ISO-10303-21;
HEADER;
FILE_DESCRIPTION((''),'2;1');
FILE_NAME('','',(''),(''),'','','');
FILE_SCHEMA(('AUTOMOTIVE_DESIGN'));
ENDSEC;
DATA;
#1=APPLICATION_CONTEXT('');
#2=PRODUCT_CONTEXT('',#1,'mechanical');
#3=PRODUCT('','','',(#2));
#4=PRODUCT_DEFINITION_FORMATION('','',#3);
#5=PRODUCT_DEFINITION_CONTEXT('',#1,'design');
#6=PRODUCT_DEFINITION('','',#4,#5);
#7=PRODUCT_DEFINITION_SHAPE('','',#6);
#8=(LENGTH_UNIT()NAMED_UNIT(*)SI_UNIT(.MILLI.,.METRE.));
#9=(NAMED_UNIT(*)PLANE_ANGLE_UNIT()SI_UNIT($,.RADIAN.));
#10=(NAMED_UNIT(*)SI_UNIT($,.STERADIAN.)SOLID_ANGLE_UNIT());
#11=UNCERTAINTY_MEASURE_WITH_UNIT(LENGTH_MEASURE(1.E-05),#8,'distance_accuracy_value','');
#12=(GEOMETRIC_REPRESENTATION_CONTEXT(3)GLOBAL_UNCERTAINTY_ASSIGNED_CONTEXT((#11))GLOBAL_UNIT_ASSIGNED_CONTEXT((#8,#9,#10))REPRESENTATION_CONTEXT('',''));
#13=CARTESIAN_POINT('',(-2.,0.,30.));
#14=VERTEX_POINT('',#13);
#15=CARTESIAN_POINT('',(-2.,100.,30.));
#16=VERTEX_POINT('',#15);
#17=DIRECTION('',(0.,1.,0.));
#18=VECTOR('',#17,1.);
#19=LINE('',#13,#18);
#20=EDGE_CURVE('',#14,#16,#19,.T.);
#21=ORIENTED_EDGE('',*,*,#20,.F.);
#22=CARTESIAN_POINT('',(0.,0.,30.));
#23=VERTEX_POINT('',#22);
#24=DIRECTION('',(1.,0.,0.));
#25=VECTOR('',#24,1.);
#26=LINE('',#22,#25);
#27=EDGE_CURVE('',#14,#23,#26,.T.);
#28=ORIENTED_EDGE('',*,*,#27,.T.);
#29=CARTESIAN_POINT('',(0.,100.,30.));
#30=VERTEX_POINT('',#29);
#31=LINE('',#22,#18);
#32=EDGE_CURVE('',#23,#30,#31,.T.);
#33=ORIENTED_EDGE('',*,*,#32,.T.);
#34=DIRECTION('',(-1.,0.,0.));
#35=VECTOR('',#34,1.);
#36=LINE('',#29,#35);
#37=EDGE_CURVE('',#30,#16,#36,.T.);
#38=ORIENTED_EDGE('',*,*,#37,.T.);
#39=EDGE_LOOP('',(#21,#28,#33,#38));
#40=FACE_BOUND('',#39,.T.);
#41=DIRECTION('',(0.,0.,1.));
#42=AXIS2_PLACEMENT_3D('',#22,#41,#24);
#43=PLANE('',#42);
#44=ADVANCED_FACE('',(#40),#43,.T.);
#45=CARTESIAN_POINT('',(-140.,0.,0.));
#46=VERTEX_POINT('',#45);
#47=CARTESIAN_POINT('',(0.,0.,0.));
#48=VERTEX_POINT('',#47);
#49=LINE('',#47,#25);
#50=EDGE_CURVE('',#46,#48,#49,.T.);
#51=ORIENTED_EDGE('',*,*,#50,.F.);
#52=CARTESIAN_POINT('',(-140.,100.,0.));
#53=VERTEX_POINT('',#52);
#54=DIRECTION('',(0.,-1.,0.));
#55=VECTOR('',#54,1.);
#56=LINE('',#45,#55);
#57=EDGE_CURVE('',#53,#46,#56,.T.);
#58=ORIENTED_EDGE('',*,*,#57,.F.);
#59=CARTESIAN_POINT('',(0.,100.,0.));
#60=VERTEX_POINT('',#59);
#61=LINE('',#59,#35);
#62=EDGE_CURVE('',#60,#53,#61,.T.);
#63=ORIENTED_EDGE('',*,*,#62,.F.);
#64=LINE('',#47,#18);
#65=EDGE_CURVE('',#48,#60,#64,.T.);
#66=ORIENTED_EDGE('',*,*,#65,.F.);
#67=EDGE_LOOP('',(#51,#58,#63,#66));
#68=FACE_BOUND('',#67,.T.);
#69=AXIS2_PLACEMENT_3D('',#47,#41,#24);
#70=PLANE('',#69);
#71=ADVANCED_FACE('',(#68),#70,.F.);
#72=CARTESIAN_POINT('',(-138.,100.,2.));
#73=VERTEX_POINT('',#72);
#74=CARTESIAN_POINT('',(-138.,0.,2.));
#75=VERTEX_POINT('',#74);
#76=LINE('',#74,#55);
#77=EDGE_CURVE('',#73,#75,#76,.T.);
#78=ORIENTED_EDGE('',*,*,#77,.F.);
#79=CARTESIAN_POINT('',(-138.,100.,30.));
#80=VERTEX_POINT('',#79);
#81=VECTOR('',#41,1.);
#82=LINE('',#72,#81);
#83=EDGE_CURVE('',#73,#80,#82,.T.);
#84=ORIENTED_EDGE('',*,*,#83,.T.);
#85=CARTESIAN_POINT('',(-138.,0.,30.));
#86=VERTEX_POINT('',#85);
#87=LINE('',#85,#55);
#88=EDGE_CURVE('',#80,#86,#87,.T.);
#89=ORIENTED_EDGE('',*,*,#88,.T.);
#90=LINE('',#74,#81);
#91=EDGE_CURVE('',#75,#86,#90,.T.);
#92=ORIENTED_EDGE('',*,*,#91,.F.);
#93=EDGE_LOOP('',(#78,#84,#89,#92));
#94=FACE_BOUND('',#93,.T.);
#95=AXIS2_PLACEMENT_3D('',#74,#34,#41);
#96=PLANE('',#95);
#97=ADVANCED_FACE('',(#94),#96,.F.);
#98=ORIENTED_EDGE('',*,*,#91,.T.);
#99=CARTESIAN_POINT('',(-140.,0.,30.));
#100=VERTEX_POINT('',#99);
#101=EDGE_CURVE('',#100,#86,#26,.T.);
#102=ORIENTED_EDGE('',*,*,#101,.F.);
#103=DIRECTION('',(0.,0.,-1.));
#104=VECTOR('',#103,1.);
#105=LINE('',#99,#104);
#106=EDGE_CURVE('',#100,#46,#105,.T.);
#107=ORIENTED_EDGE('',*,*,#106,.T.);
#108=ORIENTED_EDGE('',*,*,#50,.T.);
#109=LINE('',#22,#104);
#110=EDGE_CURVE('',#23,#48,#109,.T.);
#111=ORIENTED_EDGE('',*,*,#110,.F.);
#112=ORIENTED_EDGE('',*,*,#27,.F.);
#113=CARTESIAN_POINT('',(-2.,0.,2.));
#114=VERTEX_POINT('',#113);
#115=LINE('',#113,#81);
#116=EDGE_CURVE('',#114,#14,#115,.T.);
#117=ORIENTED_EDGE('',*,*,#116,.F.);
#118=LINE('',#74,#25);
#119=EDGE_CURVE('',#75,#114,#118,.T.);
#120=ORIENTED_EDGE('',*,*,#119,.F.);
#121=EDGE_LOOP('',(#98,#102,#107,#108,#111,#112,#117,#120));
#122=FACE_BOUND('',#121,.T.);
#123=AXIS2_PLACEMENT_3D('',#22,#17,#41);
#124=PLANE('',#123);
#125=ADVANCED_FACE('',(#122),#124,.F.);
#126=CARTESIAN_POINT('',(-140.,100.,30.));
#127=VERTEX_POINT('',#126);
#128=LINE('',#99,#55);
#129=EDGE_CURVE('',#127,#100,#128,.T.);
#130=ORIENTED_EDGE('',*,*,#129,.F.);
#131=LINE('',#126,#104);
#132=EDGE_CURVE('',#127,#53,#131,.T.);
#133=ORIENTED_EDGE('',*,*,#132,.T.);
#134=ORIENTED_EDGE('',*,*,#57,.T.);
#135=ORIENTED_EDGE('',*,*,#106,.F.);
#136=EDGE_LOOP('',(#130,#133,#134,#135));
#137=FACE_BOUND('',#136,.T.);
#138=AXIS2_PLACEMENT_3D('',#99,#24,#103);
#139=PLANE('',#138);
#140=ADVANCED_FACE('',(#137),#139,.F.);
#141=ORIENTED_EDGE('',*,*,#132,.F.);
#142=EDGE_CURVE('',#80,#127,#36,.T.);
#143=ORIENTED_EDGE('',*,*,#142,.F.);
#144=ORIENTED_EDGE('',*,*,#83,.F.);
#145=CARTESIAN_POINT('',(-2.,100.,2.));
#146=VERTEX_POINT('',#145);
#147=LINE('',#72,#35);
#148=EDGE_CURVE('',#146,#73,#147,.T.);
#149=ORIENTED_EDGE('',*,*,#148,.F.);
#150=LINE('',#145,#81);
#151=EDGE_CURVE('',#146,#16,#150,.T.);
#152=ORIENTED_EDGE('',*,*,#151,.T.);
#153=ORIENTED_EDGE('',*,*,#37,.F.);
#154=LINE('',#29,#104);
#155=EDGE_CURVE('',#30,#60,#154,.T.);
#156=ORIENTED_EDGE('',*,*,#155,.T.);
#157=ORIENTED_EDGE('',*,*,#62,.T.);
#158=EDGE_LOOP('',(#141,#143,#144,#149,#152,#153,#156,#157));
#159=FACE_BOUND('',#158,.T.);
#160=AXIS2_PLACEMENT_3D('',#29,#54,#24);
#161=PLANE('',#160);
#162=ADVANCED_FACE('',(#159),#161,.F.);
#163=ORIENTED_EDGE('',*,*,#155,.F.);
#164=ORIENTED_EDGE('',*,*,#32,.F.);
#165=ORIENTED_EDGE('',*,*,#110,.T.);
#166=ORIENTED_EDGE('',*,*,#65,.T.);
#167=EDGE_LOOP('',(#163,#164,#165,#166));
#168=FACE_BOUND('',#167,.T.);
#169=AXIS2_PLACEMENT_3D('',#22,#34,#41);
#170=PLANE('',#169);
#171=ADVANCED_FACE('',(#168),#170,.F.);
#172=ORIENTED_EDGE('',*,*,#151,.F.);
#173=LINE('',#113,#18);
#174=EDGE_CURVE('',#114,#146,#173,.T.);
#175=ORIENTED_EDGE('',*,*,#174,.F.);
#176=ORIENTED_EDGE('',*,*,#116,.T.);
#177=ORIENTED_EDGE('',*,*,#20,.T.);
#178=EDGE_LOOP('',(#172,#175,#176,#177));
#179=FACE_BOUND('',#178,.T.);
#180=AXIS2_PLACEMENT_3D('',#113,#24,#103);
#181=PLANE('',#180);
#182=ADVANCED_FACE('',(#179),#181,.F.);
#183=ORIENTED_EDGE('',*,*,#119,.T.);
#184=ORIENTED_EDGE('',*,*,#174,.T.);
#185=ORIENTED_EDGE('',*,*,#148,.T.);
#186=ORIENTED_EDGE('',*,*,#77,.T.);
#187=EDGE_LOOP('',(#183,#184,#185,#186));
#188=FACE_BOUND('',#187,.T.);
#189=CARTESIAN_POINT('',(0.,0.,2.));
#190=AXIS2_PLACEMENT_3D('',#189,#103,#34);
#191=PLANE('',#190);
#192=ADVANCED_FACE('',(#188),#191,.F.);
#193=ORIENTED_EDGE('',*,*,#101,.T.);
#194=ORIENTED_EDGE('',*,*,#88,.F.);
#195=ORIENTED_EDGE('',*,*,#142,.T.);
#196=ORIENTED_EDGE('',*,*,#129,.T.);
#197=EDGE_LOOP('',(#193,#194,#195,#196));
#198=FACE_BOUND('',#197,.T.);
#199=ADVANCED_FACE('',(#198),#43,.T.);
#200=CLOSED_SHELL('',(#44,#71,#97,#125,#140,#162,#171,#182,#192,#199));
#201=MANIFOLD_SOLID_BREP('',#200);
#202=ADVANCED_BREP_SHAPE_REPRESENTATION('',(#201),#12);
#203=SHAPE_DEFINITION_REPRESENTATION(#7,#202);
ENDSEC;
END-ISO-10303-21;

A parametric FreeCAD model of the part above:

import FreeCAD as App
import Part
import Sketcher
Q = App.Units.Quantity


def add_polygon(sketch, points):
    """Adds a closed chain of lines whose ends are joined by coincident constraints."""
    first, n = sketch.GeometryCount, len(points)
    for a, b in zip(points, points[1:] + points[:1]):
        sketch.addGeometry(Part.LineSegment(App.Vector(*a, 0), App.Vector(*b, 0)), False)
    for i in range(n):
        sketch.addConstraint(Sketcher.Constraint("Coincident", first + i, 2, first + (i + 1) % n, 1))

doc = App.newDocument("Part")
body = doc.addObject("PartDesign::Body", "Body")

# Sketch on XY plane
sketch1 = doc.addObject("Sketcher::SketchObject", "Sketch")
body.addObject(sketch1)
sketch1.AttachmentSupport = (doc.XY_Plane, [""])
sketch1.MapMode = "FlatFace"
add_polygon(sketch1, [(-140, 100), (-140, 0), (0, 0), (0, 100)])  # lines 0-3
sketch1.addConstraint([
    Sketcher.Constraint("Vertical", 0),
    Sketcher.Constraint("Horizontal", 1),
    Sketcher.Constraint("Vertical", 2),
    Sketcher.Constraint("Horizontal", 3),
    Sketcher.Constraint("Coincident", 1, 2, -1, 1),
    Sketcher.Constraint("DistanceX", 1, 1, 1, 2, Q("140 mm")),
    Sketcher.Constraint("DistanceY", 0, 2, 0, 1, Q("100 mm")),
])
pad1 = doc.addObject("PartDesign::Pad", "Pad")
body.addObject(pad1)
pad1.Profile = sketch1
pad1.Length = 30

# Sketch on XY plane
sketch2 = doc.addObject("Sketcher::SketchObject", "Sketch001")
body.addObject(sketch2)
sketch2.AttachmentSupport = (doc.XY_Plane, [""])
sketch2.MapMode = "FlatFace"
sketch2.AttachmentOffset = App.Placement(App.Vector(0, 0, 30), App.Rotation())
add_polygon(sketch2, [(-138, 100), (-138, 0), (-2, 0), (-2, 100)])  # lines 0-3
sketch2.addConstraint([
    Sketcher.Constraint("Vertical", 0),
    Sketcher.Constraint("Horizontal", 1),
    Sketcher.Constraint("Vertical", 2),
    Sketcher.Constraint("Horizontal", 3),
    Sketcher.Constraint("PointOnObject", 0, 2, -1),
    Sketcher.Constraint("DistanceX", 1, 1, 1, 2, Q("136 mm")),
    Sketcher.Constraint("DistanceY", 0, 2, 0, 1, Q("100 mm")),
    Sketcher.Constraint("DistanceX", 0, 2, -1, 1, Q("138 mm")),
])
pocket1 = doc.addObject("PartDesign::Pocket", "Pocket")
body.addObject(pocket1)
pocket1.Profile = sketch2
pocket1.Length = 28

doc.recompute()
